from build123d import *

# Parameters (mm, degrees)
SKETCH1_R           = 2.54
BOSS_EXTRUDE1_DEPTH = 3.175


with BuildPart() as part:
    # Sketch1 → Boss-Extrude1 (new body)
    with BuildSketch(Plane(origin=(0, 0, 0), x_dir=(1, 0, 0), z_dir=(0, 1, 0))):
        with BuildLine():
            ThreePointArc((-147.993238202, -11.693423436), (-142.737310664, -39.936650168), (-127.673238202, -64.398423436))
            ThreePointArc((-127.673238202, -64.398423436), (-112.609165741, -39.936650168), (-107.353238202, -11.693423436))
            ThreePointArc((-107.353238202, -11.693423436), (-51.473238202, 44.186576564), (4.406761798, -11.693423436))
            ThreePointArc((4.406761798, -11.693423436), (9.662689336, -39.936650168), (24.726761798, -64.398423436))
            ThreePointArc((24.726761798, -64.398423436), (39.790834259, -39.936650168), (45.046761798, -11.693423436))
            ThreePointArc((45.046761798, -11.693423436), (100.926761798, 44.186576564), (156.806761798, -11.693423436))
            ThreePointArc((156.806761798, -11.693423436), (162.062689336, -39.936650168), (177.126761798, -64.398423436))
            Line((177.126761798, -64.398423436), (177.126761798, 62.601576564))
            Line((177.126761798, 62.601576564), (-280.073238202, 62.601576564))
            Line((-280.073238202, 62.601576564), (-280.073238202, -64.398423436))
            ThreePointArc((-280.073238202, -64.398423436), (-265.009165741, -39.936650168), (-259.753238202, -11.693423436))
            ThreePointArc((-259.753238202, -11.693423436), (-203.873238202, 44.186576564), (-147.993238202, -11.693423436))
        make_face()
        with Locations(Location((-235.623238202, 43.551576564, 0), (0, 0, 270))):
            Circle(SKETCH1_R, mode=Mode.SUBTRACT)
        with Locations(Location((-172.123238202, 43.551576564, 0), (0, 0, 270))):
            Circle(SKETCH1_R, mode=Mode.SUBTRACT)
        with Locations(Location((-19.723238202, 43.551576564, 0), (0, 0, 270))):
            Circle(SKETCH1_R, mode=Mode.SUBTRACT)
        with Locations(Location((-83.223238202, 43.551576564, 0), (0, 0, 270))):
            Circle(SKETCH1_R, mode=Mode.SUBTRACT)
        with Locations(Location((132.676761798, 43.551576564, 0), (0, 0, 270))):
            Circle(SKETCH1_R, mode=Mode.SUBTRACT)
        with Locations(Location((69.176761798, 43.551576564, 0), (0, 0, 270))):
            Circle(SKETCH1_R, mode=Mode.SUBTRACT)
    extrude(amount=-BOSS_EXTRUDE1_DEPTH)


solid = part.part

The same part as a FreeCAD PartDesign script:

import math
import FreeCAD as App
import Part
import Sketcher
Q = App.Units.Quantity

doc = App.newDocument("Part")
body = doc.addObject("PartDesign::Body", "Body")

# Sketch on XZ plane
sketch1 = body.newObject("Sketcher::SketchObject", "Sketch")
sketch1.AttachmentSupport = (doc.getObject("XZ_Plane"), [""])
sketch1.MapMode = "FlatFace"
sketch1.addGeometry(Part.ArcOfCircle(Part.Circle(App.Vector(-69.481441, 11.693423, 0), App.Vector(0, 0, 1), 78.511797), math.radians(137.832491), math.radians(180)), False)
sketch1.addGeometry(Part.ArcOfCircle(Part.Circle(App.Vector(-185.865035, 11.693423, 0), App.Vector(0, 0, 1), 78.511797), math.radians(0), math.radians(42.167509)), False)
sketch1.addGeometry(Part.ArcOfCircle(Part.Circle(App.Vector(-51.473238, 11.693423, 0), App.Vector(0, 0, 1), 55.88), math.radians(180), math.radians(360)), False)
sketch1.addGeometry(Part.ArcOfCircle(Part.Circle(App.Vector(82.918559, 11.693423, 0), App.Vector(0, 0, 1), 78.511797), math.radians(137.832491), math.radians(180)), False)
sketch1.addGeometry(Part.ArcOfCircle(Part.Circle(App.Vector(-33.465035, 11.693423, 0), App.Vector(0, 0, 1), 78.511797), math.radians(0), math.radians(42.167509)), False)
sketch1.addGeometry(Part.ArcOfCircle(Part.Circle(App.Vector(100.926762, 11.693423, 0), App.Vector(0, 0, 1), 55.88), math.radians(180), math.radians(360)), False)
sketch1.addGeometry(Part.ArcOfCircle(Part.Circle(App.Vector(235.318559, 11.693423, 0), App.Vector(0, 0, 1), 78.511797), math.radians(137.832491), math.radians(180)), False)
sketch1.addGeometry(Part.LineSegment(App.Vector(177.126762, 64.398423, 0), App.Vector(177.126762, -62.601577, 0)), False)
sketch1.addGeometry(Part.LineSegment(App.Vector(177.126762, -62.601577, 0), App.Vector(-280.073238, -62.601577, 0)), False)
sketch1.addGeometry(Part.LineSegment(App.Vector(-280.073238, -62.601577, 0), App.Vector(-280.073238, 64.398423, 0)), False)
sketch1.addGeometry(Part.ArcOfCircle(Part.Circle(App.Vector(-338.265035, 11.693423, 0), App.Vector(0, 0, 1), 78.511797), math.radians(0), math.radians(42.167509)), False)
sketch1.addGeometry(Part.ArcOfCircle(Part.Circle(App.Vector(-203.873238, 11.693423, 0), App.Vector(0, 0, 1), 55.88), math.radians(180), math.radians(360)), False)
sketch1.addGeometry(Part.Circle(App.Vector(-235.623238, -43.551577, 0), App.Vector(0, 0, 1), 2.54), False)
sketch1.addGeometry(Part.Circle(App.Vector(-172.123238, -43.551577, 0), App.Vector(0, 0, 1), 2.54), False)
sketch1.addGeometry(Part.Circle(App.Vector(-83.223238, -43.551577, 0), App.Vector(0, 0, 1), 2.54), False)
sketch1.addGeometry(Part.Circle(App.Vector(-19.723238, -43.551577, 0), App.Vector(0, 0, 1), 2.54), False)
sketch1.addGeometry(Part.Circle(App.Vector(69.176762, -43.551577, 0), App.Vector(0, 0, 1), 2.54), False)
sketch1.addGeometry(Part.Circle(App.Vector(132.676762, -43.551577, 0), App.Vector(0, 0, 1), 2.54), False)
sketch1.addConstraint(Sketcher.Constraint("Coincident", 0, 1, 1, 2))
sketch1.addConstraint(Sketcher.Constraint("Tangent", 1, 1, 2, 1))
sketch1.addConstraint(Sketcher.Constraint("Tangent", 2, 2, 3, 2))
sketch1.addConstraint(Sketcher.Constraint("Coincident", 3, 1, 4, 2))
sketch1.addConstraint(Sketcher.Constraint("Tangent", 4, 1, 5, 1))
sketch1.addConstraint(Sketcher.Constraint("Tangent", 5, 2, 6, 2))
sketch1.addConstraint(Sketcher.Constraint("Coincident", 6, 1, 7, 1))
sketch1.addConstraint(Sketcher.Constraint("Coincident", 7, 2, 8, 1))
sketch1.addConstraint(Sketcher.Constraint("Coincident", 8, 2, 9, 1))
sketch1.addConstraint(Sketcher.Constraint("Coincident", 9, 2, 10, 2))
sketch1.addConstraint(Sketcher.Constraint("Tangent", 10, 1, 11, 1))
sketch1.addConstraint(Sketcher.Constraint("Tangent", 11, 2, 0, 2))
sketch1.addConstraint(Sketcher.Constraint("Vertical", 7))
sketch1.addConstraint(Sketcher.Constraint("Horizontal", 8))
sketch1.addConstraint(Sketcher.Constraint("Vertical", 9))
sketch1.addConstraint(Sketcher.Constraint("Equal", 0, 1))
sketch1.addConstraint(Sketcher.Constraint("Equal", 1, 3))
sketch1.addConstraint(Sketcher.Constraint("Equal", 3, 4))
sketch1.addConstraint(Sketcher.Constraint("Equal", 2, 5))
sketch1.addConstraint(Sketcher.Constraint("Equal", 4, 6))
sketch1.addConstraint(Sketcher.Constraint("Equal", 6, 10))
sketch1.addConstraint(Sketcher.Constraint("Equal", 5, 11))
sketch1.addConstraint(Sketcher.Constraint("Equal", 12, 13))
sketch1.addConstraint(Sketcher.Constraint("Equal", 13, 14))
sketch1.addConstraint(Sketcher.Constraint("Equal", 14, 15))
sketch1.addConstraint(Sketcher.Constraint("Equal", 15, 16))
sketch1.addConstraint(Sketcher.Constraint("Equal", 16, 17))
sketch1.addConstraint(Sketcher.Constraint("Horizontal", 0, 3, 1, 3))
sketch1.addConstraint(Sketcher.Constraint("Horizontal", 1, 3, 2, 3))
sketch1.addConstraint(Sketcher.Constraint("Horizontal", 2, 3, 3, 3))
sketch1.addConstraint(Sketcher.Constraint("Horizontal", 3, 3, 4, 3))
sketch1.addConstraint(Sketcher.Constraint("Horizontal", 4, 3, 5, 3))
sketch1.addConstraint(Sketcher.Constraint("Horizontal", 5, 3, 6, 3))
sketch1.addConstraint(Sketcher.Constraint("Horizontal", 6, 3, 10, 3))
sketch1.addConstraint(Sketcher.Constraint("Horizontal", 10, 3, 11, 3))
sketch1.addConstraint(Sketcher.Constraint("Horizontal", 12, 3, 13, 3))
sketch1.addConstraint(Sketcher.Constraint("Horizontal", 13, 3, 14, 3))
sketch1.addConstraint(Sketcher.Constraint("Horizontal", 14, 3, 15, 3))
sketch1.addConstraint(Sketcher.Constraint("Horizontal", 15, 3, 16, 3))
sketch1.addConstraint(Sketcher.Constraint("Horizontal", 16, 3, 17, 3))
sketch1.addConstraint(Sketcher.Constraint("Horizontal", 0, 1, 3, 1))
sketch1.addConstraint(Sketcher.Constraint("Horizontal", 3, 1, 6, 1))
sketch1.addConstraint(Sketcher.Constraint("Horizontal", 6, 1, 9, 2))
sketch1.addConstraint(Sketcher.Constraint("Diameter", 12, Q("0.2 in")))
sketch1.addConstraint(Sketcher.Constraint("Radius", 2, Q("2.2 in")))
sketch1.addConstraint(Sketcher.Constraint("DistanceX", 8, 2, 8, 1, Q("18 in")))
sketch1.addConstraint(Sketcher.Constraint("DistanceY", 7, 2, 7, 1, Q("5 in")))
sketch1.addConstraint(Sketcher.Constraint("DistanceX", 15, 3, 17, 3, Q("6 in")))
sketch1.addConstraint(Sketcher.Constraint("DistanceX", 12, 3, 13, 3, Q("2.5 in")))
sketch1.addConstraint(Sketcher.Constraint("DistanceX", 13, 3, 14, 3, Q("3.5 in")))
sketch1.addConstraint(Sketcher.Constraint("DistanceX", 14, 3, 15, 3, Q("2.5 in")))
sketch1.addConstraint(Sketcher.Constraint("DistanceX", 15, 3, 16, 3, Q("3.5 in")))
sketch1.addConstraint(Sketcher.Constraint("DistanceX", 12, 3, 11, 3, Q("1.25 in")))
sketch1.addConstraint(Sketcher.Constraint("DistanceY", 17, 3, 6, 1, Q("4.25 in")))
sketch1.addConstraint(Sketcher.Constraint("DistanceY", 12, 3, 11, 3, Q("2.175 in")))
sketch1.addConstraint(Sketcher.Constraint("DistanceX", 0, 3, -1, 1, 69.481441))
sketch1.addConstraint(Sketcher.Constraint("DistanceY", -1, 1, 0, 3, 11.693423))
pad1 = body.newObject("PartDesign::Pad", "Pad")
pad1.Profile = sketch1
pad1.Length = Q("0.125 in")

doc.recompute()
